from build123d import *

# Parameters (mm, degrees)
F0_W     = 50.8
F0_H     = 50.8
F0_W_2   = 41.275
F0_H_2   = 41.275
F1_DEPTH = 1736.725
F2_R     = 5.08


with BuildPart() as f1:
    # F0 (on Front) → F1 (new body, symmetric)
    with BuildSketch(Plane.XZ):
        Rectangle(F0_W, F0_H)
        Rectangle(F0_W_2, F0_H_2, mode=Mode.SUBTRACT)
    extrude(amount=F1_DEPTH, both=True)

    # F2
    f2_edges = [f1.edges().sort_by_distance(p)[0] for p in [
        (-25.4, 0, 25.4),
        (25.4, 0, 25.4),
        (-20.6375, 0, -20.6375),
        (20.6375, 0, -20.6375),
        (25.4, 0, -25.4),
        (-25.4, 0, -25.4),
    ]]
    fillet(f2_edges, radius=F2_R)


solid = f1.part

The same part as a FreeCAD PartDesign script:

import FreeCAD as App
import Part
import Sketcher
Q = App.Units.Quantity


def edges_at(feature, points):
    """Names of the edges that pass closest to the given points."""
    edges = feature.Shape.Edges
    near = lambda p: min(range(len(edges)), key=lambda i: edges[i].distToShape(Part.Vertex(*p))[0])
    return sorted({f"Edge{near(p) + 1}" for p in points})

doc = App.newDocument("Part")
body = doc.addObject("PartDesign::Body", "Body")

sketch1 = doc.addObject("Sketcher::SketchObject", "Sketch")
body.addObject(sketch1)
sketch1.AttachmentSupport = (doc.XZ_Plane, [""])
sketch1.MapMode = "FlatFace"
sketch1.addGeometry([
    Part.LineSegment(App.Vector(-25, 25, 0), App.Vector(-25, -25, 0)),
    Part.LineSegment(App.Vector(-25, -25, 0), App.Vector(25, -25, 0)),
    Part.LineSegment(App.Vector(25, -25, 0), App.Vector(25, 25, 0)),
    Part.LineSegment(App.Vector(25, 25, 0), App.Vector(-25, 25, 0)),
    Part.LineSegment(App.Vector(21, -21, 0), App.Vector(-21, -21, 0)),
    Part.LineSegment(App.Vector(-21, -21, 0), App.Vector(-21, 21, 0)),
    Part.LineSegment(App.Vector(-21, 21, 0), App.Vector(21, 21, 0)),
    Part.LineSegment(App.Vector(21, 21, 0), App.Vector(21, -21, 0)),
], False)
sketch1.addConstraint([
    Sketcher.Constraint("Coincident", 0, 2, 1, 1),
    Sketcher.Constraint("Coincident", 1, 2, 2, 1),
    Sketcher.Constraint("Coincident", 2, 2, 3, 1),
    Sketcher.Constraint("Coincident", 3, 2, 0, 1),
    Sketcher.Constraint("Coincident", 4, 2, 5, 1),
    Sketcher.Constraint("Coincident", 5, 2, 6, 1),
    Sketcher.Constraint("Coincident", 6, 2, 7, 1),
    Sketcher.Constraint("Coincident", 7, 2, 4, 1),
    Sketcher.Constraint("Vertical", 0),
    Sketcher.Constraint("Horizontal", 1),
    Sketcher.Constraint("Vertical", 2),
    Sketcher.Constraint("Horizontal", 3),
    Sketcher.Constraint("Horizontal", 4),
    Sketcher.Constraint("Vertical", 5),
    Sketcher.Constraint("Horizontal", 6),
    Sketcher.Constraint("Vertical", 7),
    Sketcher.Constraint("Symmetric", 0, 2, 2, 2, -1, 1),
    Sketcher.Constraint("Symmetric", 4, 2, 6, 2, -1, 1),
    Sketcher.Constraint("Equal", 3, 0),
    Sketcher.Constraint("Equal", 6, 5),
    Sketcher.Constraint("DistanceX", 1, 1, 1, 2, Q("2 in")),
    Sketcher.Constraint("DistanceX", 4, 2, 4, 1, Q("1.625 in")),
])
pad1 = doc.addObject("PartDesign::Pad", "Pad")
body.addObject(pad1)
pad1.Profile = sketch1
pad1.Length = Q("136.75 in")
pad1.Midplane = True
doc.recompute()

fillet = doc.addObject("PartDesign::Fillet", "Fillet")
body.addObject(fillet)
fillet.Base = (pad1, edges_at(pad1, [
    (-25.4, 0, 25.4),
    (25.4, 0, 25.4),
    (-20.637, 0, -20.637),
    (20.637, 0, -20.637),
    (25.4, 0, -25.4),
    (-25.4, 0, -25.4),
]))
fillet.Radius = Q("0.2 in")

doc.recompute()
